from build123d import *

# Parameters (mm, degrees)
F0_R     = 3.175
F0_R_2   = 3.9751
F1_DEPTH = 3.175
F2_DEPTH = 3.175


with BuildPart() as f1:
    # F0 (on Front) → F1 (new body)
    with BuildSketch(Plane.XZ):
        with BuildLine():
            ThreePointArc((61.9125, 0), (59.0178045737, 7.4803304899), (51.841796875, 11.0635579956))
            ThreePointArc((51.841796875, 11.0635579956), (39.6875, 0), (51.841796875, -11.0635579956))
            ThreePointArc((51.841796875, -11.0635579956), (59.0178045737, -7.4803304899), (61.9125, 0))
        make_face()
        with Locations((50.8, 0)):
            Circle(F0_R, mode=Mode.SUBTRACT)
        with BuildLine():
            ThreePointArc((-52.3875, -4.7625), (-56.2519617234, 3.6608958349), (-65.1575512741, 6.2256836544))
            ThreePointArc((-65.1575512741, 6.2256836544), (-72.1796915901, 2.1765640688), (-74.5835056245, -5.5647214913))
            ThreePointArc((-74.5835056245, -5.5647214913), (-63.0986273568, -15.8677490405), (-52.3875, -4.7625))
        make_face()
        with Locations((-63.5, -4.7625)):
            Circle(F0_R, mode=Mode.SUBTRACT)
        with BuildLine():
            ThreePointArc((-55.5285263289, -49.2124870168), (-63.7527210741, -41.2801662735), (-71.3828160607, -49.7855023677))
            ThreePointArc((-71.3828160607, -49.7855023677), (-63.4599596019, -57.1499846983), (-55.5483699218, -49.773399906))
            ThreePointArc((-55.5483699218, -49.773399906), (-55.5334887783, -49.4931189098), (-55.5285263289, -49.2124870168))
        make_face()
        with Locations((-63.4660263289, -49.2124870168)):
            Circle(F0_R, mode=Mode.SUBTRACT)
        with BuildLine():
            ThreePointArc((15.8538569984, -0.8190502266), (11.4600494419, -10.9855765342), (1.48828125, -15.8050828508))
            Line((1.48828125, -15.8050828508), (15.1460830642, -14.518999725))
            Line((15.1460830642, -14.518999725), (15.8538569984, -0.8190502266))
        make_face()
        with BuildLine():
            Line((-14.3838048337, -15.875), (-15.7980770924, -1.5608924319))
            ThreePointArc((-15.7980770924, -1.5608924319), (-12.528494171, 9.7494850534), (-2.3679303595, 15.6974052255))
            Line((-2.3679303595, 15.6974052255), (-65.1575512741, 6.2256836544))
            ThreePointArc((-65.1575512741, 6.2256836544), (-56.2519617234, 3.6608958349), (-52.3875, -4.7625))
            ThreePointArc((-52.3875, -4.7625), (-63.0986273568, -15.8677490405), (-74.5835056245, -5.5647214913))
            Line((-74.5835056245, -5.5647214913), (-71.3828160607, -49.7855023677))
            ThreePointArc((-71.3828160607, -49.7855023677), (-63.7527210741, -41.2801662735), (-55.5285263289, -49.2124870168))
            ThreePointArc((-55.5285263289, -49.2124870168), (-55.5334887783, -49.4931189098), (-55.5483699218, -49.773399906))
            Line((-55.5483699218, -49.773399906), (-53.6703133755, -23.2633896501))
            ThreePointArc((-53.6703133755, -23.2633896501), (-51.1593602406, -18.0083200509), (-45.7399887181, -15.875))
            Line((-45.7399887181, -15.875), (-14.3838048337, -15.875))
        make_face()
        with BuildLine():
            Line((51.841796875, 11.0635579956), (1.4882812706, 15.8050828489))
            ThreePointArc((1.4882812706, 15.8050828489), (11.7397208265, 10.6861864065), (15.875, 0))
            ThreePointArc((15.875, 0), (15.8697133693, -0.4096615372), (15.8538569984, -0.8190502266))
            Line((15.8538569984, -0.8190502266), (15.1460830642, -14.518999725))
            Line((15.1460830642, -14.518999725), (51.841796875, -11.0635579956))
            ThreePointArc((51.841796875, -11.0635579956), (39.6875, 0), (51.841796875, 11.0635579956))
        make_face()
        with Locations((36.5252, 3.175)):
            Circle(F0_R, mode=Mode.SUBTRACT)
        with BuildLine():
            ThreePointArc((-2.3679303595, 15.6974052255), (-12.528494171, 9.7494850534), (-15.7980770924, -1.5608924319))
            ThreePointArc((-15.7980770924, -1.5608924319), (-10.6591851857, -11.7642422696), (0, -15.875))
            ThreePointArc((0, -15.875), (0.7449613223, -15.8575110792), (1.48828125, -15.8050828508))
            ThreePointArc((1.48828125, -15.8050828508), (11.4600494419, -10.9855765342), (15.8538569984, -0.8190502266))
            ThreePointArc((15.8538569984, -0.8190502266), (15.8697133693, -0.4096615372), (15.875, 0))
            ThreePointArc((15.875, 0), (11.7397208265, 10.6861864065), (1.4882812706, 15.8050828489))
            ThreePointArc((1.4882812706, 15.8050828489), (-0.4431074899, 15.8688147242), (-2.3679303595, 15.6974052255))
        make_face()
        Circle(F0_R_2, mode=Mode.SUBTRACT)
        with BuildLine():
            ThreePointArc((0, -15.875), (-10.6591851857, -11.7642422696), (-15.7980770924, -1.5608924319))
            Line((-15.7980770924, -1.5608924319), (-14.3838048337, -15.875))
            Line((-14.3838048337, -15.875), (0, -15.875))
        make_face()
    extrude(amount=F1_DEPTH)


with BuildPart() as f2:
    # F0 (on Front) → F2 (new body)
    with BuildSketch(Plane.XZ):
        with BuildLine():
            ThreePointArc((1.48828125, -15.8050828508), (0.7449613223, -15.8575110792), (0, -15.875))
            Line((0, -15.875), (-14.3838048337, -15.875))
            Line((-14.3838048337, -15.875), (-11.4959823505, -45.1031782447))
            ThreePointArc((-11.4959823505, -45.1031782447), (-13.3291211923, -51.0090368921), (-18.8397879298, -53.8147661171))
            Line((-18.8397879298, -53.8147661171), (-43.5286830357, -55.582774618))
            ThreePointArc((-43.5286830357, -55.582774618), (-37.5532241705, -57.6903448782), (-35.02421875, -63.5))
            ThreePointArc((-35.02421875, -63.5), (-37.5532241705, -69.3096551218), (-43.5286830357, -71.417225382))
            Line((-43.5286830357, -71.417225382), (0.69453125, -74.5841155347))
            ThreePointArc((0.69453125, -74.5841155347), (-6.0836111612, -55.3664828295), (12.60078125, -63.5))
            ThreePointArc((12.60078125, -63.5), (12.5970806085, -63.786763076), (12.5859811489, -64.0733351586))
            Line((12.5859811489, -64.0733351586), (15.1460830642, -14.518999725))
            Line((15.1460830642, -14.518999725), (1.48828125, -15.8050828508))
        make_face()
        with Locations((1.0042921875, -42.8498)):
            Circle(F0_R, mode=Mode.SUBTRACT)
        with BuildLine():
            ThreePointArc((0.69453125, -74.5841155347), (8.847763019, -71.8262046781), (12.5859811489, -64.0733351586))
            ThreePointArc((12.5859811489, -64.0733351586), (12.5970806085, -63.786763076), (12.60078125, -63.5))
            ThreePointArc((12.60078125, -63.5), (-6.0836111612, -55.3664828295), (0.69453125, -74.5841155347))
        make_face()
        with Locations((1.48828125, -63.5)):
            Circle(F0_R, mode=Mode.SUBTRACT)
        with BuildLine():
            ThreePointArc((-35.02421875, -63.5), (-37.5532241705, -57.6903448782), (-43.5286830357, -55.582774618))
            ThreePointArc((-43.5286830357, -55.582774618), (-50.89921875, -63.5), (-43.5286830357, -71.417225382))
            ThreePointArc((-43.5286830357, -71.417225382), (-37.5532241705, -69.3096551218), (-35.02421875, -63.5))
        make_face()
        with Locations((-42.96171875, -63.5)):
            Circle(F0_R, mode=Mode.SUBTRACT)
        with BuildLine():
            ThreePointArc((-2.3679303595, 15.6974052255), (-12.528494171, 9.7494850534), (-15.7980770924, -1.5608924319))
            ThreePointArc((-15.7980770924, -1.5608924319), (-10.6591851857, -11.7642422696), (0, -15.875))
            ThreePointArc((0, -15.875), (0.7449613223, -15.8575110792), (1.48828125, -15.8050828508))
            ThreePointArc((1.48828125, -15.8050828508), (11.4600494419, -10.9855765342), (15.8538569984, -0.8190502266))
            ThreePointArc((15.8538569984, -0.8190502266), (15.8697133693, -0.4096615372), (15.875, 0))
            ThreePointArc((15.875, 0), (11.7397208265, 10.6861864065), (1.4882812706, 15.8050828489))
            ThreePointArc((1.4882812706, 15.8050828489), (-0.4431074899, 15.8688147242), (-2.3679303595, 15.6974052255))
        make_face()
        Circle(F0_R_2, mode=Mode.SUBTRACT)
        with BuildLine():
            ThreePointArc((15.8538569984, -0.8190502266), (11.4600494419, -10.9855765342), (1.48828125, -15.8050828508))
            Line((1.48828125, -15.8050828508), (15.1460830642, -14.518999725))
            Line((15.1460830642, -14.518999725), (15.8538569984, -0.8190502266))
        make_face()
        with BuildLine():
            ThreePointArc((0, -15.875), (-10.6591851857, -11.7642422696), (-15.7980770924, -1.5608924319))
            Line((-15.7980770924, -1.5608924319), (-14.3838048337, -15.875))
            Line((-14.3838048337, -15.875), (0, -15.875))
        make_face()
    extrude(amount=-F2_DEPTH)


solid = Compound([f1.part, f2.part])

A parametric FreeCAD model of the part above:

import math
import FreeCAD as App
import Part
import Sketcher
Q = App.Units.Quantity

doc = App.newDocument("Part")
body = doc.addObject("PartDesign::Body", "Body")

# Sketch on XZ plane
sketch1 = doc.addObject("Sketcher::SketchObject", "Sketch")
body.addObject(sketch1)
sketch1.AttachmentSupport = (doc.XZ_Plane, [""])
sketch1.MapMode = "FlatFace"
sketch1.addGeometry(Part.ArcOfCircle(Part.Circle(App.Vector(50.8, 0, 0), App.Vector(0, 0, 1), 11.1), math.radians(0), math.radians(85)), False)
sketch1.addGeometry(Part.LineSegment(App.Vector(51.8, 11.1, 0), App.Vector(1.5, 15.8, 0)), False)
sketch1.addGeometry(Part.ArcOfCircle(Part.Circle(App.Vector(0, 0, 0), App.Vector(0, 0, 1), 15.9), math.radians(84.62), math.radians(98.58)), False)
sketch1.addGeometry(Part.LineSegment(App.Vector(-2.4, 15.7, 0), App.Vector(-65.2, 6.2, 0)), False)
sketch1.addGeometry(Part.ArcOfCircle(Part.Circle(App.Vector(-63.5, -4.8, 0), App.Vector(0, 0, 1), 11.1), math.radians(99), math.radians(184)), False)
sketch1.addGeometry(Part.LineSegment(App.Vector(-74.6, -5.6, 0), App.Vector(-71.4, -49.8, 0)), False)
sketch1.addGeometry(Part.ArcOfCircle(Part.Circle(App.Vector(-63.5, -49.2, 0), App.Vector(0, 0, 1), 7.9), math.radians(-176), math.radians(-4)), False)
sketch1.addGeometry(Part.LineSegment(App.Vector(-55.5, -49.8, 0), App.Vector(-53.7, -23.3, 0)), False)
sketch1.addGeometry(Part.ArcOfCircle(Part.Circle(App.Vector(-45.7, -23.8, 0), App.Vector(0, 0, 1), 8), math.radians(90), math.radians(176)), False)
sketch1.addGeometry(Part.LineSegment(App.Vector(-45.7, -15.9, 0), App.Vector(0, -15.9, 0)), False)
sketch1.addGeometry(Part.ArcOfCircle(Part.Circle(App.Vector(0, 0, 0), App.Vector(0, 0, 1), 15.9), math.radians(-90), math.radians(-84.62)), False)
sketch1.addGeometry(Part.LineSegment(App.Vector(1.5, -15.8, 0), App.Vector(15.1, -14.5, 0)), False)
sketch1.addGeometry(Part.LineSegment(App.Vector(15.1, -14.5, 0), App.Vector(51.8, -11.1, 0)), False)
sketch1.addGeometry(Part.ArcOfCircle(Part.Circle(App.Vector(50.8, 0, 0), App.Vector(0, 0, 1), 11.1), math.radians(-85), math.radians(0)), False)
sketch1.addGeometry(Part.Circle(App.Vector(-63.5, -49.2, 0), App.Vector(0, 0, 1), 3.2), False)
sketch1.addGeometry(Part.Circle(App.Vector(-63.5, -4.8, 0), App.Vector(0, 0, 1), 3.2), False)
sketch1.addGeometry(Part.Circle(App.Vector(0, 0, 0), App.Vector(0, 0, 1), 4), False)
sketch1.addGeometry(Part.Circle(App.Vector(36.5, 3.2, 0), App.Vector(0, 0, 1), 3.2), False)
sketch1.addGeometry(Part.Circle(App.Vector(50.8, 0, 0), App.Vector(0, 0, 1), 3.2), False)
sketch1.addConstraint(Sketcher.Constraint("Tangent", 0, 2, 1, 1))
sketch1.addConstraint(Sketcher.Constraint("Tangent", 1, 2, 2, 1))
sketch1.addConstraint(Sketcher.Constraint("Tangent", 2, 2, 3, 1))
sketch1.addConstraint(Sketcher.Constraint("Tangent", 3, 2, 4, 1))
sketch1.addConstraint(Sketcher.Constraint("Tangent", 4, 2, 5, 1))
sketch1.addConstraint(Sketcher.Constraint("Tangent", 5, 2, 6, 1))
sketch1.addConstraint(Sketcher.Constraint("Tangent", 6, 2, 7, 1))
sketch1.addConstraint(Sketcher.Constraint("Tangent", 7, 2, 8, 2))
sketch1.addConstraint(Sketcher.Constraint("Tangent", 8, 1, 9, 1))
sketch1.addConstraint(Sketcher.Constraint("Tangent", 9, 2, 10, 1))
sketch1.addConstraint(Sketcher.Constraint("Tangent", 10, 2, 11, 1))
sketch1.addConstraint(Sketcher.Constraint("Coincident", 11, 2, 12, 1))
sketch1.addConstraint(Sketcher.Constraint("Tangent", 12, 2, 13, 1))
sketch1.addConstraint(Sketcher.Constraint("Tangent", 13, 2, 0, 1))
sketch1.addConstraint(Sketcher.Constraint("Horizontal", 9))
sketch1.addConstraint(Sketcher.Constraint("Coincident", 2, 3, -1, 1))
sketch1.addConstraint(Sketcher.Constraint("Coincident", 10, 3, -1, 1))
sketch1.addConstraint(Sketcher.Constraint("Coincident", 16, 3, -1, 1))
sketch1.addConstraint(Sketcher.Constraint("Coincident", 14, 3, 6, 3))
sketch1.addConstraint(Sketcher.Constraint("Coincident", 15, 3, 4, 3))
sketch1.addConstraint(Sketcher.Constraint("Coincident", 18, 3, 0, 3))
sketch1.addConstraint(Sketcher.Constraint("Equal", 0, 4))
sketch1.addConstraint(Sketcher.Constraint("Equal", 2, 10))
sketch1.addConstraint(Sketcher.Constraint("Equal", 4, 13))
sketch1.addConstraint(Sketcher.Constraint("Equal", 14, 15))
sketch1.addConstraint(Sketcher.Constraint("Equal", 15, 17))
sketch1.addConstraint(Sketcher.Constraint("Equal", 17, 18))
sketch1.addConstraint(Sketcher.Constraint("Symmetric", 0, 2, 12, 2, -1))
sketch1.addConstraint(Sketcher.Constraint("PointOnObject", 13, 2, -1))
sketch1.addConstraint(Sketcher.Constraint("Diameter", 14, Q("0.25 in")))
sketch1.addConstraint(Sketcher.Constraint("Diameter", 16, Q("0.313 in")))
sketch1.addConstraint(Sketcher.Constraint("DistanceX", -1, 1, 0, 3, Q("2 in")))
sketch1.addConstraint(Sketcher.Constraint("Radius", 0, Q("0.4375 in")))
sketch1.addConstraint(Sketcher.Constraint("Radius", 2, Q("0.625 in")))
sketch1.addConstraint(Sketcher.Constraint("Radius", 6, Q("0.3125 in")))
sketch1.addConstraint(Sketcher.Constraint("Radius", 8, Q("0.313 in")))
sketch1.addConstraint(Sketcher.Constraint("Distance", 3, Q("2.5 in")))
sketch1.addConstraint(Sketcher.Constraint("DistanceX", 4, 3, -1, 1, Q("2.5 in")))
sketch1.addConstraint(Sketcher.Constraint("DistanceX", -1, 1, 17, 3, Q("1.438 in")))
sketch1.addConstraint(Sketcher.Constraint("DistanceY", -1, 1, 17, 3, Q("0.125 in")))
sketch1.addConstraint(Sketcher.Constraint("DistanceX", 9, 1, 9, 2, 45.739989))
sketch1.addConstraint(Sketcher.Constraint("DistanceY", 6, 2, -1, 1, 49.7734))
sketch1.addConstraint(Sketcher.Constraint("DistanceY", 11, 2, -1, 1, 14.519))
sketch1.addConstraint(Sketcher.Constraint("Distance", 7, 26.576451))
pad1 = doc.addObject("PartDesign::Pad", "Pad")
body.addObject(pad1)
pad1.Profile = sketch1
pad1.Length = Q("0.125 in")
body2 = doc.addObject("PartDesign::Body", "Body001")

# Sketch on XZ plane
sketch2 = doc.addObject("Sketcher::SketchObject", "Sketch001")
body2.addObject(sketch2)
sketch2.AttachmentSupport = (doc.getObject("XZ_Plane001"), [""])
sketch2.MapMode = "FlatFace"
sketch2.addGeometry(Part.LineSegment(App.Vector(12.585981, -64.073335, 0), App.Vector(15.146083, -14.519, 0)), False)
sketch2.addGeometry(Part.LineSegment(App.Vector(15.146083, -14.519, 0), App.Vector(15.853857, -0.81905, 0)), False)
sketch2.addGeometry(Part.ArcOfCircle(Part.Circle(App.Vector(0, 0, 0), App.Vector(0, 0, 1), 15.875), math.radians(-2.957415), math.radians(0)), False)
sketch2.addGeometry(Part.ArcOfCircle(Part.Circle(App.Vector(0, 0, 0), App.Vector(0, 0, 1), 15.875), math.radians(0), math.radians(84.620621)), False)
sketch2.addGeometry(Part.ArcOfCircle(Part.Circle(App.Vector(0, 0, 0), App.Vector(0, 0, 1), 15.875), math.radians(84.620621), math.radians(98.578307)), False)
sketch2.addGeometry(Part.ArcOfCircle(Part.Circle(App.Vector(0, 0, 0), App.Vector(0, 0, 1), 15.875), math.radians(98.578307), math.radians(185.642663)), False)
sketch2.addGeometry(Part.LineSegment(App.Vector(-15.798077, -1.560892, 0), App.Vector(-14.383805, -15.875, 0)), False)
sketch2.addGeometry(Part.LineSegment(App.Vector(-14.383805, -15.875, 0), App.Vector(-11.495982, -45.103178, 0)), False)
sketch2.addGeometry(Part.ArcOfCircle(Part.Circle(App.Vector(-19.407659, -45.884873, 0), App.Vector(0, 0, 1), 7.9502), math.radians(-85.903956), math.radians(5.642663)), False)
sketch2.addGeometry(Part.LineSegment(App.Vector(-18.839788, -53.814766, 0), App.Vector(-43.528683, -55.582775, 0)), False)
sketch2.addGeometry(Part.ArcOfCircle(Part.Circle(App.Vector(-42.961719, -63.5, 0), App.Vector(0, 0, 1), 7.9375), math.radians(94.096044), math.radians(265.903956)), False)
sketch2.addGeometry(Part.LineSegment(App.Vector(-43.528683, -71.417225, 0), App.Vector(0.694531, -74.584116, 0)), False)
sketch2.addGeometry(Part.ArcOfCircle(Part.Circle(App.Vector(1.488281, -63.5, 0), App.Vector(0, 0, 1), 11.1125), math.radians(-94.096044), math.radians(-2.957415)), False)
sketch2.addGeometry(Part.Circle(App.Vector(-42.961719, -63.5, 0), App.Vector(0, 0, 1), 3.175), False)
sketch2.addGeometry(Part.Circle(App.Vector(1.488281, -63.5, 0), App.Vector(0, 0, 1), 3.175), False)
sketch2.addGeometry(Part.Circle(App.Vector(1.004292, -42.8498, 0), App.Vector(0, 0, 1), 3.175), False)
sketch2.addGeometry(Part.Circle(App.Vector(0, 0, 0), App.Vector(0, 0, 1), 3.9751), False)
sketch2.addConstraint(Sketcher.Constraint("Coincident", 0, 2, 1, 1))
sketch2.addConstraint(Sketcher.Constraint("Coincident", 1, 2, 2, 1))
sketch2.addConstraint(Sketcher.Constraint("Coincident", 2, 2, 3, 1))
sketch2.addConstraint(Sketcher.Constraint("Coincident", 3, 2, 4, 1))
sketch2.addConstraint(Sketcher.Constraint("Coincident", 4, 2, 5, 1))
sketch2.addConstraint(Sketcher.Constraint("Coincident", 5, 2, 6, 1))
sketch2.addConstraint(Sketcher.Constraint("Coincident", 6, 2, 7, 1))
sketch2.addConstraint(Sketcher.Constraint("Coincident", 7, 2, 8, 2))
sketch2.addConstraint(Sketcher.Constraint("Coincident", 8, 1, 9, 1))
sketch2.addConstraint(Sketcher.Constraint("Coincident", 9, 2, 10, 1))
sketch2.addConstraint(Sketcher.Constraint("Coincident", 10, 2, 11, 1))
sketch2.addConstraint(Sketcher.Constraint("Coincident", 11, 2, 12, 1))
sketch2.addConstraint(Sketcher.Constraint("Coincident", 12, 2, 0, 1))
sketch2.addConstraint(Sketcher.Constraint("Coincident", 2, 3, -1, 1))
sketch2.addConstraint(Sketcher.Constraint("Coincident", 3, 3, -1, 1))
sketch2.addConstraint(Sketcher.Constraint("Coincident", 4, 3, -1, 1))
sketch2.addConstraint(Sketcher.Constraint("Coincident", 5, 3, -1, 1))
sketch2.addConstraint(Sketcher.Constraint("Coincident", 16, 3, -1, 1))
sketch2.addConstraint(Sketcher.Constraint("Coincident", 13, 3, 10, 3))
sketch2.addConstraint(Sketcher.Constraint("Coincident", 14, 3, 12, 3))
sketch2.addConstraint(Sketcher.Constraint("PointOnObject", 2, 2, -1))
sketch2.addConstraint(Sketcher.Constraint("Diameter", 13, Q("0.25 in")))
sketch2.addConstraint(Sketcher.Constraint("Diameter", 14, Q("0.25 in")))
sketch2.addConstraint(Sketcher.Constraint("Diameter", 15, Q("0.25 in")))
sketch2.addConstraint(Sketcher.Constraint("Diameter", 16, Q("0.313 in")))
sketch2.addConstraint(Sketcher.Constraint("Radius", 2, Q("0.625 in")))
sketch2.addConstraint(Sketcher.Constraint("Radius", 8, Q("0.313 in")))
sketch2.addConstraint(Sketcher.Constraint("Radius", 10, Q("0.3125 in")))
sketch2.addConstraint(Sketcher.Constraint("Radius", 12, Q("0.4375 in")))
sketch2.addConstraint(Sketcher.Constraint("DistanceY", 10, 3, -1, 1, Q("2.5 in")))
sketch2.addConstraint(Sketcher.Constraint("DistanceY", 12, 3, -1, 1, Q("2.5 in")))
sketch2.addConstraint(Sketcher.Constraint("DistanceX", 10, 3, 12, 3, Q("1.75 in")))
sketch2.addConstraint(Sketcher.Constraint("DistanceY", 15, 3, -1, 1, Q("1.687 in")))
sketch2.addConstraint(Sketcher.Constraint("DistanceY", 6, 2, -1, 1, Q("0.625 in")))
sketch2.addConstraint(Sketcher.Constraint("DistanceX", 11, 2, 12, 3, Q("0.03125 in")))
sketch2.addConstraint(Sketcher.Constraint("DistanceY", 0, 2, -1, 1, 14.519))
sketch2.addConstraint(Sketcher.Constraint("DistanceY", 9, 2, 8, 3, 9.697901))
sketch2.addConstraint(Sketcher.Constraint("DistanceX", 9, 2, 7, 2, 32.032701))
sketch2.addConstraint(Sketcher.Constraint("DistanceX", 12, 3, 12, 2, 11.0977))
sketch2.addConstraint(Sketcher.Constraint("Distance", 1, 13.71822))
sketch2.addConstraint(Sketcher.Constraint("Distance", 9, 24.752119))
sketch2.addConstraint(Sketcher.Constraint("DistanceX", 8, 3, -1, 1, 19.407659))
sketch2.addConstraint(Sketcher.Constraint("DistanceX", 10, 3, -1, 1, 42.961719))
sketch2.addConstraint(Sketcher.Constraint("DistanceY", 1, 2, -1, 1, 0.81905))
sketch2.addConstraint(Sketcher.Constraint("DistanceX", -1, 1, 3, 2, 1.488281))
sketch2.addConstraint(Sketcher.Constraint("DistanceX", 4, 2, -1, 1, 2.36793))
sketch2.addConstraint(Sketcher.Constraint("DistanceY", 7, 2, -1, 1, 45.103178))
sketch2.addConstraint(Sketcher.Constraint("DistanceX", 8, 3, 15, 3, 20.411952))
sketch2.addConstraint(Sketcher.Constraint("DistanceY", 10, 2, 9, 2, 15.834451))
sketch2.addConstraint(Sketcher.Constraint("Distance", 6, 14.383805))
sketch2.addConstraint(Sketcher.Constraint("Distance", 7, 29.370494))
pad2 = doc.addObject("PartDesign::Pad", "Pad001")
body2.addObject(pad2)
pad2.Profile = sketch2
pad2.Length = Q("0.125 in")
pad2.Reversed = True

doc.recompute()
